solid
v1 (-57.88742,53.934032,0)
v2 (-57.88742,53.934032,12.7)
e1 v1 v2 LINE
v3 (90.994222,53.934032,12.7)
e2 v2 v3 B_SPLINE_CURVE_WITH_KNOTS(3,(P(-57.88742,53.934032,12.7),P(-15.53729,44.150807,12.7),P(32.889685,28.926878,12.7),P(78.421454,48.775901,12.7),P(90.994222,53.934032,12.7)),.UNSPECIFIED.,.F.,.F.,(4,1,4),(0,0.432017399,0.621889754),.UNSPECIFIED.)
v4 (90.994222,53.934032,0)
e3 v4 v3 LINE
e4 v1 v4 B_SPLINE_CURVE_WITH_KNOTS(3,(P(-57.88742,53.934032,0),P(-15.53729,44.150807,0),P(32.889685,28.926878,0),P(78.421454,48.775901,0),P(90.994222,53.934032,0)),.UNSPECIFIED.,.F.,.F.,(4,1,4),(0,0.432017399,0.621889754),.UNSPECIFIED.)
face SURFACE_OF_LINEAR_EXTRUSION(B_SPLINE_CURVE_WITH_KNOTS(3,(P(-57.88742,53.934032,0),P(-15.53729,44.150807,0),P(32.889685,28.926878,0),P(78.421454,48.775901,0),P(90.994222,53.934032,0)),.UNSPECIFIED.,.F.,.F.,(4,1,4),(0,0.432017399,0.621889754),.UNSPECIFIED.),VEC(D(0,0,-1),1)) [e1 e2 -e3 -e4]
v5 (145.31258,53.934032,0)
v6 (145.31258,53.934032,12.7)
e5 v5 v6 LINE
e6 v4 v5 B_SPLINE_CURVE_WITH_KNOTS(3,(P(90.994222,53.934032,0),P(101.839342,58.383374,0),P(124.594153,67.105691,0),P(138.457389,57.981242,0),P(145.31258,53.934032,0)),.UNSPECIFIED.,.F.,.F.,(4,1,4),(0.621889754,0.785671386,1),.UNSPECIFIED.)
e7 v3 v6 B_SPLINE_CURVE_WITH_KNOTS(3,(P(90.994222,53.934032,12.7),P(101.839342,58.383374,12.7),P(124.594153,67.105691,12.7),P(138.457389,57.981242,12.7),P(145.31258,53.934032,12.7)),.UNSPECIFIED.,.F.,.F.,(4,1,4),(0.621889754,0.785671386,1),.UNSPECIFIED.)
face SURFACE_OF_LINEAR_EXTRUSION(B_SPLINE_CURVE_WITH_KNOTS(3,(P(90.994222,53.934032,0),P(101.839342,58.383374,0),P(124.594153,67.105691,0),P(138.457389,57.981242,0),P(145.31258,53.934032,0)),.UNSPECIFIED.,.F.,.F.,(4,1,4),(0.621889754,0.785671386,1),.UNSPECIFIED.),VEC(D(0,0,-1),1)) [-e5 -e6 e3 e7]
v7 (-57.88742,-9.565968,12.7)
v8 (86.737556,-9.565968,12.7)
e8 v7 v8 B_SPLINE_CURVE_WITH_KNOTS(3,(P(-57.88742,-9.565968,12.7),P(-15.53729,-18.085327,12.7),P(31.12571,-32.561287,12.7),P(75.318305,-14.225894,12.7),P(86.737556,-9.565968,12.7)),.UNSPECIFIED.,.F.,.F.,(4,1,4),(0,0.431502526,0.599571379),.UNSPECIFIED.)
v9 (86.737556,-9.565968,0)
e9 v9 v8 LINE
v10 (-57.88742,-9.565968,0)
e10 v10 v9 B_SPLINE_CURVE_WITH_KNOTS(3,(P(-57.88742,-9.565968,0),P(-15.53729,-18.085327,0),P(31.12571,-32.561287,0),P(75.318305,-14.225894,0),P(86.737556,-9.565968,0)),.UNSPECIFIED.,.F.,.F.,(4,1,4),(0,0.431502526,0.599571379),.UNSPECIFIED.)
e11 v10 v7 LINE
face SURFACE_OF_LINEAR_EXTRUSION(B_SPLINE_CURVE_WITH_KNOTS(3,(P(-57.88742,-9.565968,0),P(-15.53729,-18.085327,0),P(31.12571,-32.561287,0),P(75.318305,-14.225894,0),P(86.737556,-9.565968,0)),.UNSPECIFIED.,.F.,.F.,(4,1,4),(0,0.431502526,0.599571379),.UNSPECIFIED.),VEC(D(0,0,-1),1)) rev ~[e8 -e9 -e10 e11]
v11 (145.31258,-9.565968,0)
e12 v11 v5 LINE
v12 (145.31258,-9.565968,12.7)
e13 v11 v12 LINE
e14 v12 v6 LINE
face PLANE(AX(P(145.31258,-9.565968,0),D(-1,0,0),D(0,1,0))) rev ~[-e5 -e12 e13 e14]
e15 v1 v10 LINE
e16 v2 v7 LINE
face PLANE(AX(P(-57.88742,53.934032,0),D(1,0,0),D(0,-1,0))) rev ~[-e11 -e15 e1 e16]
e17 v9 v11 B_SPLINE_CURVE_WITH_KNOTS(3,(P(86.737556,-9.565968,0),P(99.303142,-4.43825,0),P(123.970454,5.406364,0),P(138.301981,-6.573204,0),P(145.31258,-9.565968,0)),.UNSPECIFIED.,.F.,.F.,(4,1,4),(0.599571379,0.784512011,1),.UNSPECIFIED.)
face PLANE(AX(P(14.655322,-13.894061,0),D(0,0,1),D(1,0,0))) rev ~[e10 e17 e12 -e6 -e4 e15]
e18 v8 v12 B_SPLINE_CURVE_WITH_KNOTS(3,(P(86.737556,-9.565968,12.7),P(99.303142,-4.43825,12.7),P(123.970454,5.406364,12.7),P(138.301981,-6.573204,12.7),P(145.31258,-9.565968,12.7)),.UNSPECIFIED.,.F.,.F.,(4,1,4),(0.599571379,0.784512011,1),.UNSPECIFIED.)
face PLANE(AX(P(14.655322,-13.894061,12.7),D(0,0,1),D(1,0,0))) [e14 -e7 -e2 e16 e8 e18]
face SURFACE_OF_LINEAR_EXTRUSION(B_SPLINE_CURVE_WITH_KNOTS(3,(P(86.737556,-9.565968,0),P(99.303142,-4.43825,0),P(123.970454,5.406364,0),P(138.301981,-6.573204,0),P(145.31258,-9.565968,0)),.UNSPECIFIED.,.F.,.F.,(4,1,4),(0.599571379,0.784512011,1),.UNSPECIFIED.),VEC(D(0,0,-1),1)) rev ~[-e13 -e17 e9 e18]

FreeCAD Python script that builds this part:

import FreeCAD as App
import Part
import Sketcher
from FreeCAD import Vector
Q = App.Units.Quantity

doc = App.newDocument("Part")
body = doc.addObject("PartDesign::Body", "Body")

sketch1 = body.newObject("Sketcher::SketchObject", "Sketch")
sketch1.AttachmentSupport = (doc.getObject("XY_Plane"), [""])
sketch1.MapMode = "FlatFace"
sketch1.addGeometry(Part.BSplineCurve([Vector(-57.88742, -9.565968, 0), Vector(-15.53729, -18.085327, 0), Vector(31.12571, -32.561287, 0), Vector(75.318305, -14.225894, 0), Vector(86.737556, -9.565968, 0)], [4, 1, 4], [0, 0.431502526, 0.599571379], False, 3, [1, 1, 1, 1, 1], False), False)
sketch1.addGeometry(Part.BSplineCurve([Vector(86.737556, -9.565968, 0), Vector(99.303142, -4.43825, 0), Vector(123.970454, 5.406364, 0), Vector(138.301981, -6.573204, 0), Vector(145.31258, -9.565968, 0)], [4, 1, 4], [0.599571379, 0.784512011, 1], False, 3, [1, 1, 1, 1, 1], False), False)
sketch1.addGeometry(Part.LineSegment(Vector(145.31258, -9.565968, 0), Vector(145.31258, 53.934032, 0)), False)
sketch1.addGeometry(Part.BSplineCurve([Vector(90.994222, 53.934032, 0), Vector(101.839342, 58.383374, 0), Vector(124.594153, 67.105691, 0), Vector(138.457389, 57.981242, 0), Vector(145.31258, 53.934032, 0)], [4, 1, 4], [0.621889754, 0.785671386, 1], False, 3, [1, 1, 1, 1, 1], False), False)
sketch1.addGeometry(Part.BSplineCurve([Vector(-57.88742, 53.934032, 0), Vector(-15.53729, 44.150807, 0), Vector(32.889685, 28.926878, 0), Vector(78.421454, 48.775901, 0), Vector(90.994222, 53.934032, 0)], [4, 1, 4], [0, 0.432017399, 0.621889754], False, 3, [1, 1, 1, 1, 1], False), False)
sketch1.addGeometry(Part.LineSegment(Vector(-57.88742, 53.934032, 0), Vector(-57.88742, -9.565968, 0)), False)
sketch1.addConstraint(Sketcher.Constraint("Block", 0))
sketch1.addConstraint(Sketcher.Constraint("Block", 1))
sketch1.addConstraint(Sketcher.Constraint("Block", 3))
sketch1.addConstraint(Sketcher.Constraint("Block", 4))
sketch1.addConstraint(Sketcher.Constraint("Coincident", 1, 2, 2, 1))
sketch1.addConstraint(Sketcher.Constraint("Coincident", 2, 2, 3, 2))
sketch1.addConstraint(Sketcher.Constraint("Coincident", 4, 1, 5, 1))
sketch1.addConstraint(Sketcher.Constraint("Coincident", 5, 2, 0, 1))
pad1 = body.newObject("PartDesign::Pad", "Pad")
pad1.Profile = sketch1
pad1.Length = Q("0.5 in")

doc.recompute()
